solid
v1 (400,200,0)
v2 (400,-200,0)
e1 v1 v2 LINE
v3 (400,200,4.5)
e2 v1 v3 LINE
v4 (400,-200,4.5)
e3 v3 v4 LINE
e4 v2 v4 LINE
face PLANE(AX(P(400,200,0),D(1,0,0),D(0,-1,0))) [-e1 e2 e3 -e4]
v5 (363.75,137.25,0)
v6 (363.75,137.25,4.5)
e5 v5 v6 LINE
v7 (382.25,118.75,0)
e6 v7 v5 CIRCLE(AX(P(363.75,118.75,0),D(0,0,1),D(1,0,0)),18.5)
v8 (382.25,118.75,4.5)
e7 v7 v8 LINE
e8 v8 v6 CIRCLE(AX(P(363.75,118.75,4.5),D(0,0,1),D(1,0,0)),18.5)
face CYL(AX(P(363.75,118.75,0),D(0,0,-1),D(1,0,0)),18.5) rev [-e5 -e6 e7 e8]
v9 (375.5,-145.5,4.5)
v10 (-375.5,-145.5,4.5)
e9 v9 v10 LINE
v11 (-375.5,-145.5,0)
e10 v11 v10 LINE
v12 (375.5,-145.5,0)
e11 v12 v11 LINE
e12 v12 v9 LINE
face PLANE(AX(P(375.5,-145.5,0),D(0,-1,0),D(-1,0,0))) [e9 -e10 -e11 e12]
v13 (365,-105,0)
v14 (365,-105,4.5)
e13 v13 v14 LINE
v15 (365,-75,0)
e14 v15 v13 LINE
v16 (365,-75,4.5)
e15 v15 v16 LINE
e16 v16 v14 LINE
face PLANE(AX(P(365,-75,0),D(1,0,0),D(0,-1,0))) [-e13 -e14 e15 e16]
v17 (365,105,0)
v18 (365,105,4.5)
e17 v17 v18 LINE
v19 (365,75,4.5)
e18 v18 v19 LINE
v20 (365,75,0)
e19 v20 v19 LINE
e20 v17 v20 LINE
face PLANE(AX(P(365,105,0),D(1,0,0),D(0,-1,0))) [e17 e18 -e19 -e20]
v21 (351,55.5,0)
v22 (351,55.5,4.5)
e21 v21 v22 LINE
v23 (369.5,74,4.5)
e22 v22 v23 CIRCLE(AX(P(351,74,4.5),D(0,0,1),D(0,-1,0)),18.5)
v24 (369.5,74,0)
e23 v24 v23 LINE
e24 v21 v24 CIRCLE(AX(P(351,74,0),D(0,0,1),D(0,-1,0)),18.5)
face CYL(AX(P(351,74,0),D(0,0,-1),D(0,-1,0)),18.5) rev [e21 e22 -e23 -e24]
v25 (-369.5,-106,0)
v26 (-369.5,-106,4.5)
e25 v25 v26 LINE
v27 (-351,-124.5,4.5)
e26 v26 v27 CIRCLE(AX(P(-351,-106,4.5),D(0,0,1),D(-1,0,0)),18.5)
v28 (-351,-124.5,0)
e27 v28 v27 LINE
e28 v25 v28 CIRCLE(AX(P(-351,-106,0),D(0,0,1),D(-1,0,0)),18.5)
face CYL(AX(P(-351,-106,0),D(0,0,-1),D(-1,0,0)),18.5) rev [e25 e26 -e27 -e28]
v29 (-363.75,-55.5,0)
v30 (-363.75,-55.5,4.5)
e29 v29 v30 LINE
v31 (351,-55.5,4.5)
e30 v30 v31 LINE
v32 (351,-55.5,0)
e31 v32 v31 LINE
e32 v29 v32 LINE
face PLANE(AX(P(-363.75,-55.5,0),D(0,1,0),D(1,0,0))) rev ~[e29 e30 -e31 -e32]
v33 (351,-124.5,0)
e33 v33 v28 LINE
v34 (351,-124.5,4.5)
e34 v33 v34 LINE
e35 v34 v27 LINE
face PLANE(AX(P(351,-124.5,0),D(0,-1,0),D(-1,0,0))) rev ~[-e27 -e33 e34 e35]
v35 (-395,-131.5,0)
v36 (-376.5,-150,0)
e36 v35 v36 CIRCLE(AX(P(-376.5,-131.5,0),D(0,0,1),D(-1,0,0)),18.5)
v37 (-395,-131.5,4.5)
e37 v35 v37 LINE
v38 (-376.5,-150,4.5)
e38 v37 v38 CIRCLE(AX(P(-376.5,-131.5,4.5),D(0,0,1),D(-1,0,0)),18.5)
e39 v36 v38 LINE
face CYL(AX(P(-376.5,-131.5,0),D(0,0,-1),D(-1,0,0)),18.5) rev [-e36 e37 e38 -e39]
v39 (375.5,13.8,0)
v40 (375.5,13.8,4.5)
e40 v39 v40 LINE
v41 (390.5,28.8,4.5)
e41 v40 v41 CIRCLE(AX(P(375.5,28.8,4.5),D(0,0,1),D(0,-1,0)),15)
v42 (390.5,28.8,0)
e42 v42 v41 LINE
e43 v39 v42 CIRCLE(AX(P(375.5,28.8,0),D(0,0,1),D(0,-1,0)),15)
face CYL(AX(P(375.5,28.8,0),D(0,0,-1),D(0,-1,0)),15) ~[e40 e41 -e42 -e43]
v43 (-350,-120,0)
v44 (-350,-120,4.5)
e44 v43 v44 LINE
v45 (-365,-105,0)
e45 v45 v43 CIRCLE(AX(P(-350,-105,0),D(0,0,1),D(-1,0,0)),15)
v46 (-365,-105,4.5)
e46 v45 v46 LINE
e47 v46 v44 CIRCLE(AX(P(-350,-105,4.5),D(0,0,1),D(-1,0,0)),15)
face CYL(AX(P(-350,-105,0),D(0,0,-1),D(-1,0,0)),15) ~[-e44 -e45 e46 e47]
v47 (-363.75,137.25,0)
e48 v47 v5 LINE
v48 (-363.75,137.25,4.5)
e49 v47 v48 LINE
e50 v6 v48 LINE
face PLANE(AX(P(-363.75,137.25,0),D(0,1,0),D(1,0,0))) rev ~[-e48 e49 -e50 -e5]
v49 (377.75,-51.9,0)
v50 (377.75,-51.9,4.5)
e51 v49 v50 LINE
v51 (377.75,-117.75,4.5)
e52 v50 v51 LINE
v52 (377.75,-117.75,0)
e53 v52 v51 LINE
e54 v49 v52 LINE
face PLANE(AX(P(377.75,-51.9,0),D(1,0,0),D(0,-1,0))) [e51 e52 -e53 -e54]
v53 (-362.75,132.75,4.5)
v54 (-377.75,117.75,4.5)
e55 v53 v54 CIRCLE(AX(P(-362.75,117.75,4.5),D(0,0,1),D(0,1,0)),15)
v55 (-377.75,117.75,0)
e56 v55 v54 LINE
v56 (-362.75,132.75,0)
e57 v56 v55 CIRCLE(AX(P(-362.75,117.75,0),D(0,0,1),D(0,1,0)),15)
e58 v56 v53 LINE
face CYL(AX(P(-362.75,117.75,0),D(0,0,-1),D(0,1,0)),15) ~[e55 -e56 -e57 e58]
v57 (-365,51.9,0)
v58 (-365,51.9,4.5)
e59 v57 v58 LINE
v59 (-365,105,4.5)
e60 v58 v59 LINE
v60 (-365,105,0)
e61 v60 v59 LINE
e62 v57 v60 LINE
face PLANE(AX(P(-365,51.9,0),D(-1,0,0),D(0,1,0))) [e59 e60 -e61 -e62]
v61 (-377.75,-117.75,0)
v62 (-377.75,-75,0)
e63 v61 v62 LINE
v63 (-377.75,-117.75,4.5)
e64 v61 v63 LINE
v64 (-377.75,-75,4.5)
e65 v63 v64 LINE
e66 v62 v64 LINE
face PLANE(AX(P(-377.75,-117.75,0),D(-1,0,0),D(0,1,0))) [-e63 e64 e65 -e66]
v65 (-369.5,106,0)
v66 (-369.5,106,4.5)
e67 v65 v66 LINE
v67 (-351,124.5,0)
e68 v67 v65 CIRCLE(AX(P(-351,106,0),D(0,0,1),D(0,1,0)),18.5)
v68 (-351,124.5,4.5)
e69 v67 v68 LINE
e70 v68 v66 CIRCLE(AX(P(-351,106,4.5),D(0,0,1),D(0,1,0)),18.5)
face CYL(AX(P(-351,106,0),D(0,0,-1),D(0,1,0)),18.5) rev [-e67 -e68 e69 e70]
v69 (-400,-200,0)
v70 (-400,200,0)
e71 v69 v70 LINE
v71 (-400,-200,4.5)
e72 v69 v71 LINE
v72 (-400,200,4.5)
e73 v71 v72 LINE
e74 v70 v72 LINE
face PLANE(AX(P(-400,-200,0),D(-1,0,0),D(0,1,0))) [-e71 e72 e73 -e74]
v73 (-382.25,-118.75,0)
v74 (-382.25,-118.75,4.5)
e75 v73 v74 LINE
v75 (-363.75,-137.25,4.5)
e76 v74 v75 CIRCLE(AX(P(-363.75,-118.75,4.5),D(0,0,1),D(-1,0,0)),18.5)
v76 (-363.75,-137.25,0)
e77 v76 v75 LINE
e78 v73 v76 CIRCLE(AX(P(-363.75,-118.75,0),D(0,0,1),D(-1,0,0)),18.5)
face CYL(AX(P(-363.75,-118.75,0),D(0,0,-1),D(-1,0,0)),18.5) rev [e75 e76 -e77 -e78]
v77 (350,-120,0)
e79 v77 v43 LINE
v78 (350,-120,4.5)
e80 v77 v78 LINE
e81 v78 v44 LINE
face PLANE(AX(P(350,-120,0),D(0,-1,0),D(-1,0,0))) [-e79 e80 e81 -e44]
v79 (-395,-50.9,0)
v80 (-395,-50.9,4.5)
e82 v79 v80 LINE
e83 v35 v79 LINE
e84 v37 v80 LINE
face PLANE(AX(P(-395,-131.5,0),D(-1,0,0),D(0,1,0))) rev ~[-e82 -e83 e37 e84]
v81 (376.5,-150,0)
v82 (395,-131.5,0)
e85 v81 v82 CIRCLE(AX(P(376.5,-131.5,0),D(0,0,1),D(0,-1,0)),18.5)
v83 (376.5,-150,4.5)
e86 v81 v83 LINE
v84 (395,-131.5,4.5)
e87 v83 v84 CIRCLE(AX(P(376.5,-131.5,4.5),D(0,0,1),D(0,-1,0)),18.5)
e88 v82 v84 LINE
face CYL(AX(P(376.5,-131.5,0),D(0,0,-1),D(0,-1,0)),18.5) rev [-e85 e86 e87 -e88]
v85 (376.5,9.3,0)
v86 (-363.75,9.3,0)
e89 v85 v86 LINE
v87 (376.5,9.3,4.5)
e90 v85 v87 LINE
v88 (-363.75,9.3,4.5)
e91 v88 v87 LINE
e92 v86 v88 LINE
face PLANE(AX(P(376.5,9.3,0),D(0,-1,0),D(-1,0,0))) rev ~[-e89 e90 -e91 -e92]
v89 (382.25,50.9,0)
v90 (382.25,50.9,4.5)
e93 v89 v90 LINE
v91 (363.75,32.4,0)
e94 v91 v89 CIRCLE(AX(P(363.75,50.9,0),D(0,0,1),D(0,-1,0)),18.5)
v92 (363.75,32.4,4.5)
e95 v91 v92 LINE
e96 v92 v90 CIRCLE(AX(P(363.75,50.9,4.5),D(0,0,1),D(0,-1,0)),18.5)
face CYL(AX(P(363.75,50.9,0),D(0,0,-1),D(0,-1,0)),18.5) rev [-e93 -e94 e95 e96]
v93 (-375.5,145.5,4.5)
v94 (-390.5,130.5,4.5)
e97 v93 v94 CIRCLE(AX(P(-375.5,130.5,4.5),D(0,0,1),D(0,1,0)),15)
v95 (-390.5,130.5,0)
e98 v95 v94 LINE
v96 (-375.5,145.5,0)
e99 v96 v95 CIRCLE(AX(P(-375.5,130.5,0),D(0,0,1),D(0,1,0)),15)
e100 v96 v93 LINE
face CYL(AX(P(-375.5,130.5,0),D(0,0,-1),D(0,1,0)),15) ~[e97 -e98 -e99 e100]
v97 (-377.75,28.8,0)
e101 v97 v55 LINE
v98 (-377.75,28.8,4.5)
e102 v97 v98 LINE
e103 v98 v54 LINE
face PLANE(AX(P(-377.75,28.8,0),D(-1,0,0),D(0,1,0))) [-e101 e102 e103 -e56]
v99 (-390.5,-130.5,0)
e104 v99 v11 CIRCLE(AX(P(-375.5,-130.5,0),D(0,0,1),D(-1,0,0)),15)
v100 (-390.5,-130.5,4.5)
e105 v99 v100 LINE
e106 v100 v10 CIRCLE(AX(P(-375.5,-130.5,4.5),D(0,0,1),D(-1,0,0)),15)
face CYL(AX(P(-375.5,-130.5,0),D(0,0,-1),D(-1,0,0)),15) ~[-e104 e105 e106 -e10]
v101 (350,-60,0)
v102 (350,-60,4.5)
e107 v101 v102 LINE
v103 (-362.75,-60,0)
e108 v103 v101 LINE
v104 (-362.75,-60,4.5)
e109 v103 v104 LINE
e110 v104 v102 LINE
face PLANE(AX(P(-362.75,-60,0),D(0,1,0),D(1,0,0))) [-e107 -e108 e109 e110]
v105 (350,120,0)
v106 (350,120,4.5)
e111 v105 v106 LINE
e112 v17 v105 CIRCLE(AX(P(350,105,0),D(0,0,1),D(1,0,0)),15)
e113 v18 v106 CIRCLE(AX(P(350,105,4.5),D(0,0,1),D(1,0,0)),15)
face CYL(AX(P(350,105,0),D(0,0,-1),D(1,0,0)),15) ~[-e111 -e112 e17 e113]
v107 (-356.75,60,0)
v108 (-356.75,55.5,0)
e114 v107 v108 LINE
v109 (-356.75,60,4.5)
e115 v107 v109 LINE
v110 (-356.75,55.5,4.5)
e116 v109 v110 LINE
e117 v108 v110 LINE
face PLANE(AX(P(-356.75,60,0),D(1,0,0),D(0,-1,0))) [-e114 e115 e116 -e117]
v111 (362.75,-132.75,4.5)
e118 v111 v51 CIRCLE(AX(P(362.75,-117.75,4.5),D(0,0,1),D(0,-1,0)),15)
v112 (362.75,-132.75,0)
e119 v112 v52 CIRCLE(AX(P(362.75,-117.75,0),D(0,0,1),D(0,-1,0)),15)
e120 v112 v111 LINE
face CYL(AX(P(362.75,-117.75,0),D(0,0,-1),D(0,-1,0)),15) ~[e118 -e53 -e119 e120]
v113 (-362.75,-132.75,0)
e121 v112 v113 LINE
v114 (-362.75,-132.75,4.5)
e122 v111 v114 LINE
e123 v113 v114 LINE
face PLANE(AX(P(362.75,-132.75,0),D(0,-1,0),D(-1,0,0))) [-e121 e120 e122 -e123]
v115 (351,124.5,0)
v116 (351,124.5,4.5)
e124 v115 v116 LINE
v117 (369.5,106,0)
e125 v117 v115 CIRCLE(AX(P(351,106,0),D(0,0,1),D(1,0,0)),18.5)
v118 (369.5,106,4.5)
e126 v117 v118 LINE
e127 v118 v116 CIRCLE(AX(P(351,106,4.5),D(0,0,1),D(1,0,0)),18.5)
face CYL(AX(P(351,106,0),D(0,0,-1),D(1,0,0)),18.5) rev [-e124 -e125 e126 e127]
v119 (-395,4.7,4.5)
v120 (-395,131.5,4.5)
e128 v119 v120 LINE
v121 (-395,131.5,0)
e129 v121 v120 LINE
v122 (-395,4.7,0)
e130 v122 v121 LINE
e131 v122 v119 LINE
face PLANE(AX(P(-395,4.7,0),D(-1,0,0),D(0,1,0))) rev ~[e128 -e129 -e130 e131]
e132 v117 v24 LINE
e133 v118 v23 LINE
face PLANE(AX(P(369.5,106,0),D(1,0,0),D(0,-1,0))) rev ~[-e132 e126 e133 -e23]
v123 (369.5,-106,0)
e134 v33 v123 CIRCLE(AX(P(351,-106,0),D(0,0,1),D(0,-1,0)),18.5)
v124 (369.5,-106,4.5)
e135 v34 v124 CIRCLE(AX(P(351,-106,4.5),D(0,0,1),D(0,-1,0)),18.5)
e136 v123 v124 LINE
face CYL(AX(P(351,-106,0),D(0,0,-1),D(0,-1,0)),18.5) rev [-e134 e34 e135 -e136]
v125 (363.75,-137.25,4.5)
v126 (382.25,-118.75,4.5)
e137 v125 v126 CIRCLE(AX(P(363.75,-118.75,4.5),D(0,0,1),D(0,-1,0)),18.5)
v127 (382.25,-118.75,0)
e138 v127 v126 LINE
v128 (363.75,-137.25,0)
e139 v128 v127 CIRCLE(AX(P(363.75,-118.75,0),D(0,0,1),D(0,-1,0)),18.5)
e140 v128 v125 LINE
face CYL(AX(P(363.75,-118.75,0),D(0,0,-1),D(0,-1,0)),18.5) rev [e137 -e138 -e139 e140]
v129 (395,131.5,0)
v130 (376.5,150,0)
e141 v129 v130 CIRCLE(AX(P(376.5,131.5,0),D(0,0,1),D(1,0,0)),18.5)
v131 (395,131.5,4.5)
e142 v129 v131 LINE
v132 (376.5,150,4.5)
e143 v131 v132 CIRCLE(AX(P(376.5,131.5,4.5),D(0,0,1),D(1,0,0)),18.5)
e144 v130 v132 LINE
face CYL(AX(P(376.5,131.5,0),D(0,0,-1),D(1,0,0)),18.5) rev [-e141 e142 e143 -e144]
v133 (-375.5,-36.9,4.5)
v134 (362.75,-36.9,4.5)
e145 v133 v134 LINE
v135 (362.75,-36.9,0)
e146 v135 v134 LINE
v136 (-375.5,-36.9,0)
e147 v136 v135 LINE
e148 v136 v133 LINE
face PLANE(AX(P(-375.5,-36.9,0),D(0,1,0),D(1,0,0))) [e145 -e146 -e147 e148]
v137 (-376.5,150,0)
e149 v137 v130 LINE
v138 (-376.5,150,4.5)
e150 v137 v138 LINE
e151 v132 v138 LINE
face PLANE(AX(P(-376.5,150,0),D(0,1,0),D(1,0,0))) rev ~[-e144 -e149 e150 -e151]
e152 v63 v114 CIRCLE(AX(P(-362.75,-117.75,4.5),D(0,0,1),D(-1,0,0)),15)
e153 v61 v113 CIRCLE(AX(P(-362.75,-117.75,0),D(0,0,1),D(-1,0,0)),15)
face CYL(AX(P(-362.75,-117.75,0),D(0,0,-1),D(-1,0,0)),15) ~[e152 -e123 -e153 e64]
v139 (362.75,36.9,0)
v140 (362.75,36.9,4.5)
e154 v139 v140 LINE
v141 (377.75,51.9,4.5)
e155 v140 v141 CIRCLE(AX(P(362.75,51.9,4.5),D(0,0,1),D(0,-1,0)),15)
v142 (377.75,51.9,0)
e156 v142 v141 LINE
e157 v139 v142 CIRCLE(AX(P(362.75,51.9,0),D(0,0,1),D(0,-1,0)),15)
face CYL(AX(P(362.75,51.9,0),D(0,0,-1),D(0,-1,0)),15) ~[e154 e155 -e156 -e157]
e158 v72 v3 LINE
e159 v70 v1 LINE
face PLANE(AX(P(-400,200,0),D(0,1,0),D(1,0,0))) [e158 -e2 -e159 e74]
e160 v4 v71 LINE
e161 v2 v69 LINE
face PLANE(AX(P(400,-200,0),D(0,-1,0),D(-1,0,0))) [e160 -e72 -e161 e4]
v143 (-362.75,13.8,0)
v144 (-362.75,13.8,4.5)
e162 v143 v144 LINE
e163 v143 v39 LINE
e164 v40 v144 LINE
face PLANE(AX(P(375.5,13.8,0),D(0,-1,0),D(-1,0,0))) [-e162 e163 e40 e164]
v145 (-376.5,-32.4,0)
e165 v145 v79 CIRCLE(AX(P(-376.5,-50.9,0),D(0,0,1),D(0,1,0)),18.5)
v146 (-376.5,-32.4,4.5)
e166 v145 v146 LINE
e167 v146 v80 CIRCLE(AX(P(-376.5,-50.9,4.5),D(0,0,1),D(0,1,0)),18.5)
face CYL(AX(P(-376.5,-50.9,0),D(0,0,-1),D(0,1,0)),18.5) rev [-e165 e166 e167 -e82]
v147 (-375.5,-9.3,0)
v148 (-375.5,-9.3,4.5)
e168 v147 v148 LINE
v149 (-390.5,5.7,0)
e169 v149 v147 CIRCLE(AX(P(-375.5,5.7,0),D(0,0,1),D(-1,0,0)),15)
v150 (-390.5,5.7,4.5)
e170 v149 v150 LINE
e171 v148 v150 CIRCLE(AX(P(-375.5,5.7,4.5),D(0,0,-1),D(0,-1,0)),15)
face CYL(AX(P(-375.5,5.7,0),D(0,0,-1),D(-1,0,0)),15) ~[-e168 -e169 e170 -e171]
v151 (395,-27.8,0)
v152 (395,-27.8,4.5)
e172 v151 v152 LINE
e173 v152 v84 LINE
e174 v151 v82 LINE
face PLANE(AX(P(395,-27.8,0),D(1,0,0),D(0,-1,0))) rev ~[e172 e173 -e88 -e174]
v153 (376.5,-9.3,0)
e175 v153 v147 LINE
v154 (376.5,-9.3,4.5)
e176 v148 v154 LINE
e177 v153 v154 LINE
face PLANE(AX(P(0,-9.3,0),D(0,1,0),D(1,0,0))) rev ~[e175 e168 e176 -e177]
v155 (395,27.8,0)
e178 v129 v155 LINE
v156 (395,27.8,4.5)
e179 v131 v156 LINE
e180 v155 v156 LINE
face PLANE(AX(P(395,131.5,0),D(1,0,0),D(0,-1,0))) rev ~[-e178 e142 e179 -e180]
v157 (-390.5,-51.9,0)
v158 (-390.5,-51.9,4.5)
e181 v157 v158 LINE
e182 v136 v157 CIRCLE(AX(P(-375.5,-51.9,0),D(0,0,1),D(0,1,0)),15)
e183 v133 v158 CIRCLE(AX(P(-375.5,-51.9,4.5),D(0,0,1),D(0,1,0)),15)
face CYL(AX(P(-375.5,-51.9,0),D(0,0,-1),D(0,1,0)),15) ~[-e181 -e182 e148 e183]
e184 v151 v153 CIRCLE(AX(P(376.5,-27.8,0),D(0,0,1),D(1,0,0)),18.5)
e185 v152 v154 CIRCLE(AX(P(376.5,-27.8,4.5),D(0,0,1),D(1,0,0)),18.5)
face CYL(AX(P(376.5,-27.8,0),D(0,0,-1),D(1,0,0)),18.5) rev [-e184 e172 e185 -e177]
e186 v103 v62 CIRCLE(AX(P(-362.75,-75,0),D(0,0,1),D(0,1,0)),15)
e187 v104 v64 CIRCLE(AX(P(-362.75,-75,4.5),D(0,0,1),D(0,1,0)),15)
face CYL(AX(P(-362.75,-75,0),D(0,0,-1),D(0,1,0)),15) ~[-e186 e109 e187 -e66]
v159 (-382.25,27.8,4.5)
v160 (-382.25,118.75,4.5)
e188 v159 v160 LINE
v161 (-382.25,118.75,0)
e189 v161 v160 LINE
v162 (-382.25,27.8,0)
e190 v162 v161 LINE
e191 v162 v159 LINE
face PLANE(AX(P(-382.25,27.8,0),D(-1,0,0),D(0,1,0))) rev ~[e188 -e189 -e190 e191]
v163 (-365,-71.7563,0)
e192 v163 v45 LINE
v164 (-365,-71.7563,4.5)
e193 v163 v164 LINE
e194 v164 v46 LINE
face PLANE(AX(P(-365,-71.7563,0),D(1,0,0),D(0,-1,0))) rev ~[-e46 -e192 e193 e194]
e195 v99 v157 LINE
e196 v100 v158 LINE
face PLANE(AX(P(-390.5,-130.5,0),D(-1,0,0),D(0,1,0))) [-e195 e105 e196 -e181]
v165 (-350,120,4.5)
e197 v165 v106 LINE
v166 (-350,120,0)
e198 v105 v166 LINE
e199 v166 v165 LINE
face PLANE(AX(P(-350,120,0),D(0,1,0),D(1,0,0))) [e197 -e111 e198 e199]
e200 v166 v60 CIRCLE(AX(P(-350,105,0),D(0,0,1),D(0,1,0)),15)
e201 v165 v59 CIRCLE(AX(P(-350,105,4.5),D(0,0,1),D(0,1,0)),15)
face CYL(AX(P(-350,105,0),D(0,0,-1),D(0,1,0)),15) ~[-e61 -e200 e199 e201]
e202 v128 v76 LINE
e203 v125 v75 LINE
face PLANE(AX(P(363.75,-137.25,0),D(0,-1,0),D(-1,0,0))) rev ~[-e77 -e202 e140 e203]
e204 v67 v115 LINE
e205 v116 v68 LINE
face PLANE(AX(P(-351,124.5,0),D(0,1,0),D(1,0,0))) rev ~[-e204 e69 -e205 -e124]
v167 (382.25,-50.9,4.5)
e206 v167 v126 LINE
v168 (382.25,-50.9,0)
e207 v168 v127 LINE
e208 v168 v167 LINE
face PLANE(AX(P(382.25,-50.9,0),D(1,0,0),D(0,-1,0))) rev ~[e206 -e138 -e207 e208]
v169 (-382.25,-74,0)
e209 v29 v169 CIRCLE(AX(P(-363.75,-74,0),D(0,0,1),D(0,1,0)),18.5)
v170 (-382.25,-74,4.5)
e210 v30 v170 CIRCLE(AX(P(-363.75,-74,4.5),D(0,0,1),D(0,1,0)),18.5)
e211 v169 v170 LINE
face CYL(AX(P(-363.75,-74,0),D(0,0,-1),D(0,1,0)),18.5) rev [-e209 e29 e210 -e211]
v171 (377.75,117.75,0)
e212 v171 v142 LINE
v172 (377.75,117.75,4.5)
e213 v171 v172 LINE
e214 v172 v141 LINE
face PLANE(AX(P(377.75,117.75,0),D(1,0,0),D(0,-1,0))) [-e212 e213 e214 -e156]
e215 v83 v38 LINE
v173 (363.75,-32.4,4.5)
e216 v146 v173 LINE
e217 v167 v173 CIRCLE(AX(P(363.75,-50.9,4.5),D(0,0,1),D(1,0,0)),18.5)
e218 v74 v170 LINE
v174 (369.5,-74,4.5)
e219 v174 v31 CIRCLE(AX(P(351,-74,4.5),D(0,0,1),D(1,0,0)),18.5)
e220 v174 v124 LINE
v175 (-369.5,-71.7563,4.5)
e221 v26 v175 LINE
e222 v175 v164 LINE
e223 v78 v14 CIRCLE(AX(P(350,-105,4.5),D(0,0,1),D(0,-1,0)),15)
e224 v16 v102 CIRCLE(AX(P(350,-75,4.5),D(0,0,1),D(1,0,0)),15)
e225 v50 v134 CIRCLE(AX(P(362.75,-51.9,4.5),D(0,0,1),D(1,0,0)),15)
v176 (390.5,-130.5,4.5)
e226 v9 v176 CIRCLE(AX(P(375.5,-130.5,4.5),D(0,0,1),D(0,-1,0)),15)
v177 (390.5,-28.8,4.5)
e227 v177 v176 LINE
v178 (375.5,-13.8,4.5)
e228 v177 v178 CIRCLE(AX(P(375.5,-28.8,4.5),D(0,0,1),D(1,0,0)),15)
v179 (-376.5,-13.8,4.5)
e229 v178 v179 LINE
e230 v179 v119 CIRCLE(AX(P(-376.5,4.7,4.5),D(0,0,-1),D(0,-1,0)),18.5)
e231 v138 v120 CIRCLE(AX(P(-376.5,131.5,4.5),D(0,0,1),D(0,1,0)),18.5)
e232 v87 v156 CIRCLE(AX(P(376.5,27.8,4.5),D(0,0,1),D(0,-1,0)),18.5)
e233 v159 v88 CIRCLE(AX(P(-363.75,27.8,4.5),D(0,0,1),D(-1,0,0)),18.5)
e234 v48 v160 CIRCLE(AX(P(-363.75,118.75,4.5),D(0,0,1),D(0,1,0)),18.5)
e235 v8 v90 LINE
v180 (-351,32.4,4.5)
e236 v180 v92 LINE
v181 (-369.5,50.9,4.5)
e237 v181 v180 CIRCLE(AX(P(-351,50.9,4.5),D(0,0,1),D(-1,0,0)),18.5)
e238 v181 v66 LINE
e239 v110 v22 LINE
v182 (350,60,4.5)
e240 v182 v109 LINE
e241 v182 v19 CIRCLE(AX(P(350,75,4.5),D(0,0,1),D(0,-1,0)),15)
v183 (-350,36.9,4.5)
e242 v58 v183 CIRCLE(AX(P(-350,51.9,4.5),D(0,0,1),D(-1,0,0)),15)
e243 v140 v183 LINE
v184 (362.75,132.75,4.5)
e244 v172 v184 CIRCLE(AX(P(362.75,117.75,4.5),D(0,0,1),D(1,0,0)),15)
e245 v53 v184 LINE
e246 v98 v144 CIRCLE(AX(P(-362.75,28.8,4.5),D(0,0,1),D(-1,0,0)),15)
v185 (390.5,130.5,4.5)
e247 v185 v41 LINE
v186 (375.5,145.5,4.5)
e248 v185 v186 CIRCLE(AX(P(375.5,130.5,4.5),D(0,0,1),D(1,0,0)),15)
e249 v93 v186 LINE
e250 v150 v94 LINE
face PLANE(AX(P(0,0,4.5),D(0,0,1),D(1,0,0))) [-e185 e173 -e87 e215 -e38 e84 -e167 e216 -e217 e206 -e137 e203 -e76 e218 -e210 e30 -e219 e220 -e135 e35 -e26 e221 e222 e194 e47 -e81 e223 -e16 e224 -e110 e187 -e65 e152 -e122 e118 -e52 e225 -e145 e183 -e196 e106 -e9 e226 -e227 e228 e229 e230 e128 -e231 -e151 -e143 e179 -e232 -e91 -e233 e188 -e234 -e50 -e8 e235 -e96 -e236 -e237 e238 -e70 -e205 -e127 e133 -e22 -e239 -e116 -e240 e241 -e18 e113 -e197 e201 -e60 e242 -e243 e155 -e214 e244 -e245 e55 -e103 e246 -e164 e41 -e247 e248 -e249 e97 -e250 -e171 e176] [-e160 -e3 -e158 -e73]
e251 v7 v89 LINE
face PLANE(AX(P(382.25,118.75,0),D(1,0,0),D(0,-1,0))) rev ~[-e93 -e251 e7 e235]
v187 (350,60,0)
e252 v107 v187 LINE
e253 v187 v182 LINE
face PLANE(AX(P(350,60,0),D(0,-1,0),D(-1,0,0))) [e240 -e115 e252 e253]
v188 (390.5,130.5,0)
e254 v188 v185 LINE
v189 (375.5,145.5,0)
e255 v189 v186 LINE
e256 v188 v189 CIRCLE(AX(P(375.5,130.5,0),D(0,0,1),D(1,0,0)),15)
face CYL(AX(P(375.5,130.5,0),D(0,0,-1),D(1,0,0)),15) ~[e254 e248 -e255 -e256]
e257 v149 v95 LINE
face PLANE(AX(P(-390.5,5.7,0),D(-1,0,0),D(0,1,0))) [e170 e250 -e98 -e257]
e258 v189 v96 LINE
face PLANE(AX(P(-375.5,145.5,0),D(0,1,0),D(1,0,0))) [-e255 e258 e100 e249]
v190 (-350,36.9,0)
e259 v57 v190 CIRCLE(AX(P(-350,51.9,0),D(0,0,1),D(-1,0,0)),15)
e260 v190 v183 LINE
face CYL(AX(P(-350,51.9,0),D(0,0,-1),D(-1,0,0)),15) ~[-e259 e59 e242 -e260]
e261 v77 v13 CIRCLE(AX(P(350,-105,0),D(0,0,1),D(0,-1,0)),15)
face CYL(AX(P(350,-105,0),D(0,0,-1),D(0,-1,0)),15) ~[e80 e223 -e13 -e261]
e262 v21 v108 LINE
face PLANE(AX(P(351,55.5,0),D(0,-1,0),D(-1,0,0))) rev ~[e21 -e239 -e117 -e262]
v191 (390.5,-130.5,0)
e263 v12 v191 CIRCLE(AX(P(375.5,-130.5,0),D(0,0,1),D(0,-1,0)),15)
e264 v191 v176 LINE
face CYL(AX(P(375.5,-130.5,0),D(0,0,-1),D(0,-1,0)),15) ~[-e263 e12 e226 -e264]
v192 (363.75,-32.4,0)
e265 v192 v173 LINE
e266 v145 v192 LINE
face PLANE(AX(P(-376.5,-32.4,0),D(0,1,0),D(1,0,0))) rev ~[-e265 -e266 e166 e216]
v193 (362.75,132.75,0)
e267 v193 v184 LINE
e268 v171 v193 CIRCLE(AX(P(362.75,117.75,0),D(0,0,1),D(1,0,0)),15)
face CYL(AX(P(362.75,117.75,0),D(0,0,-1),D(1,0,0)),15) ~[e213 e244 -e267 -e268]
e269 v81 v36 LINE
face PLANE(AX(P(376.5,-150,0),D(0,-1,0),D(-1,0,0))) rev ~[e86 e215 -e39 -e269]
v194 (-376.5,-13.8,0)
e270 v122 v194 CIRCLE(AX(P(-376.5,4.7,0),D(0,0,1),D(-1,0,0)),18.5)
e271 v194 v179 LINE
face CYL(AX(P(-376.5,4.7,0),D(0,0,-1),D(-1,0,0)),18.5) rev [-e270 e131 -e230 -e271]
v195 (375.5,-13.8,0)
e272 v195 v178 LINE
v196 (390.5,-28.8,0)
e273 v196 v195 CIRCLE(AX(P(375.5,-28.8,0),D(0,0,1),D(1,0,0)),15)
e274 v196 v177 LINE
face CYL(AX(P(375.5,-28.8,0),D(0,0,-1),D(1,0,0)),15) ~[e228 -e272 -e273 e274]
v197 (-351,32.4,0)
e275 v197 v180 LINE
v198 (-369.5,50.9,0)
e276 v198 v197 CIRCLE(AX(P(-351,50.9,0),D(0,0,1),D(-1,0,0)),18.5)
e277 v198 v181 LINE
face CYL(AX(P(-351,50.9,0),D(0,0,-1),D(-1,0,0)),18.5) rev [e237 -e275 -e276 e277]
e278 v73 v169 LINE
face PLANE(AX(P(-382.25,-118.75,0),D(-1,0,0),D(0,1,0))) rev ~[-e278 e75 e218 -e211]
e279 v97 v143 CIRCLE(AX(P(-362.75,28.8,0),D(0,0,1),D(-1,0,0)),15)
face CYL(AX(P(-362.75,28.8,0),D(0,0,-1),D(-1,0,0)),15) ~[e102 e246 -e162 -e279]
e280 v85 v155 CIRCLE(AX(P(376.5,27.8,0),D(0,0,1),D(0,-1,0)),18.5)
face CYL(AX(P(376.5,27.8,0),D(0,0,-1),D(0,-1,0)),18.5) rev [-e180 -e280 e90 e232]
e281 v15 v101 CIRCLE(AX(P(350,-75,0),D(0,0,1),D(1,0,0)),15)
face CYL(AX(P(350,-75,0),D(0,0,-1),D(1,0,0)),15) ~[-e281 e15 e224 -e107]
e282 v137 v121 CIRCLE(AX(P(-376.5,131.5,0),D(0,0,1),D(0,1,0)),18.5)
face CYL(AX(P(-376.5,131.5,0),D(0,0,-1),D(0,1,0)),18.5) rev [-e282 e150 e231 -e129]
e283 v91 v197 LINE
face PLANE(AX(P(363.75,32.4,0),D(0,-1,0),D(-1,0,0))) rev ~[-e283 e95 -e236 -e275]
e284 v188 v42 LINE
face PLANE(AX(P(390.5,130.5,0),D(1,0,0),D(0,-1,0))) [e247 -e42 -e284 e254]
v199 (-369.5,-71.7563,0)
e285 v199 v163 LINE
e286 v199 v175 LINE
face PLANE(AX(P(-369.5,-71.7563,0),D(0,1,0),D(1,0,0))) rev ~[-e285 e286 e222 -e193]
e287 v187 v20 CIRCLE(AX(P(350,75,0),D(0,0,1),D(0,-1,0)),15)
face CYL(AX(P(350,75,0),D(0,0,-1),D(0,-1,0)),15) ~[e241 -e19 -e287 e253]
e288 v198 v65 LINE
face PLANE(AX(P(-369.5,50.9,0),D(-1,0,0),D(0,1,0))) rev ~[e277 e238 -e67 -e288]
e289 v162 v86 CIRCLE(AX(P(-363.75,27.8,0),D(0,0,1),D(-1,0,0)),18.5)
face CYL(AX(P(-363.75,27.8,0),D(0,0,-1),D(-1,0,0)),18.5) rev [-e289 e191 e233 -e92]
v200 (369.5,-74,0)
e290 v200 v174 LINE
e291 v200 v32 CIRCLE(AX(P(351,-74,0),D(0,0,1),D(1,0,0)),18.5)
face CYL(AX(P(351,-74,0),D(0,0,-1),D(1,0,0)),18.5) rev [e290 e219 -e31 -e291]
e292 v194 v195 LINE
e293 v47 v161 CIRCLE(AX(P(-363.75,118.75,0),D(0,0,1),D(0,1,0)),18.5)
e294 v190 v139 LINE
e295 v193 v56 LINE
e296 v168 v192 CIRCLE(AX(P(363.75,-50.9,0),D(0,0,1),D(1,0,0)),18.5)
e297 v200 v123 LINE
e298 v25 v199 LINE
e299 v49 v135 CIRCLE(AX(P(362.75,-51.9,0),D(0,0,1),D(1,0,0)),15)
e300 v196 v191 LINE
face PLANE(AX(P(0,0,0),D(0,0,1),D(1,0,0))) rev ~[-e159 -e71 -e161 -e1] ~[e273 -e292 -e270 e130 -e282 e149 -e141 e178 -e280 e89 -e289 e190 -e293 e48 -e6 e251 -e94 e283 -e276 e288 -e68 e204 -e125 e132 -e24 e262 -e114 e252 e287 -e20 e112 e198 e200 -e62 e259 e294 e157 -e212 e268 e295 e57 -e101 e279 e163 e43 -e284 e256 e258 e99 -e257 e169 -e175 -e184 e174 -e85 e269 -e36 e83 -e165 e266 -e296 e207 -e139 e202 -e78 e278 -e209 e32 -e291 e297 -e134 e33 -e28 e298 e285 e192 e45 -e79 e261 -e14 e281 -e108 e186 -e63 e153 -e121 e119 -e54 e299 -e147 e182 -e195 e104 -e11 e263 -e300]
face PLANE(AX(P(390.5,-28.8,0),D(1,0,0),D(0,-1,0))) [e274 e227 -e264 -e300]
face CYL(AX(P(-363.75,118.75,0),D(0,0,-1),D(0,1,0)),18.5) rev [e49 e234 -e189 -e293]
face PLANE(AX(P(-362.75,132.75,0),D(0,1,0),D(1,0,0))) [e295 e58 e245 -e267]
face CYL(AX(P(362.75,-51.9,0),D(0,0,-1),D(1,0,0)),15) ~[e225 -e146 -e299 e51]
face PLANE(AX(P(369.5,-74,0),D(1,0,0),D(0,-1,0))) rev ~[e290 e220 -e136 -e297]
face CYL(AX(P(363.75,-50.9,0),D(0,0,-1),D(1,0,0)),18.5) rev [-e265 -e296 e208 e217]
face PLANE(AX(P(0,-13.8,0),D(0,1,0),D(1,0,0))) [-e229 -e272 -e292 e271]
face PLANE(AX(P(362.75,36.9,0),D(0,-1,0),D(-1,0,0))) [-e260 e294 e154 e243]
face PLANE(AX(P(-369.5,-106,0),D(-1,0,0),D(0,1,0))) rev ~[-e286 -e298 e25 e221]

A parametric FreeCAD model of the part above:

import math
import FreeCAD as App
import Part
import Sketcher
from FreeCAD import Vector


def add_polygon(sketch, points):
    """Adds a closed chain of lines whose ends are joined by coincident constraints."""
    first, n = sketch.GeometryCount, len(points)
    for a, b in zip(points, points[1:] + points[:1]):
        sketch.addGeometry(Part.LineSegment(App.Vector(*a, 0), App.Vector(*b, 0)), False)
    for i in range(n):
        sketch.addConstraint(Sketcher.Constraint("Coincident", first + i, 2, first + (i + 1) % n, 1))

doc = App.newDocument("Part")
body = doc.addObject("PartDesign::Body", "Body")

sketch1 = body.newObject("Sketcher::SketchObject", "Sketch")
sketch1.AttachmentSupport = (doc.getObject("XY_Plane"), [""])
sketch1.MapMode = "FlatFace"
add_polygon(sketch1, [(400, 200), (-400, 200), (-400, -200), (400, -200)])
sketch1.addConstraint([
    Sketcher.Constraint("Horizontal", 0),
    Sketcher.Constraint("Vertical", 1),
    Sketcher.Constraint("Horizontal", 2),
    Sketcher.Constraint("Vertical", 3),
    Sketcher.Constraint("Symmetric", 0, 2, 2, 2, -1, 1),
    Sketcher.Constraint("DistanceX", 0, 2, 0, 1, 800.0),
    Sketcher.Constraint("DistanceY", 1, 2, 1, 1, 400.0),
])
pad1 = body.newObject("PartDesign::Pad", "Pad")
pad1.Profile = sketch1
pad1.Length = 4.5

sketch2 = body.newObject("Sketcher::SketchObject", "Sketch001")
sketch2.AttachmentSupport = (doc.getObject("XY_Plane"), [""])
sketch2.MapMode = "FlatFace"
sketch2.addGeometry([
    Part.LineSegment(Vector(-376.5, -13.8, 0), Vector(0, -13.8, 0)),
    Part.LineSegment(Vector(0, -13.8, 0), Vector(0, -9.3, 0)),
    Part.LineSegment(Vector(0, -9.3, 0), Vector(-375.5, -9.3, 0)),
    Part.ArcOfCircle(Part.Circle(Vector(-375.5, 5.7, 0), Vector(0, 0, 1), 15), math.radians(180), math.radians(270)),
    Part.LineSegment(Vector(-390.5, 5.7, 0), Vector(-390.5, 130.5, 0)),
    Part.ArcOfCircle(Part.Circle(Vector(-375.5, 130.5, 0), Vector(0, 0, 1), 15), math.radians(90), math.radians(180)),
    Part.LineSegment(Vector(-375.5, 145.5, 0), Vector(375.5, 145.5, 0)),
    Part.ArcOfCircle(Part.Circle(Vector(375.5, 130.5, 0), Vector(0, 0, 1), 15), math.radians(0), math.radians(90)),
    Part.LineSegment(Vector(390.5, 130.5, 0), Vector(390.5, 28.8, 0)),
    Part.ArcOfCircle(Part.Circle(Vector(375.5, 28.8, 0), Vector(0, 0, 1), 15), math.radians(-90), math.radians(0)),
    Part.LineSegment(Vector(375.5, 13.8, 0), Vector(-362.75, 13.8, 0)),
    Part.ArcOfCircle(Part.Circle(Vector(-362.75, 28.8, 0), Vector(0, 0, 1), 15), math.radians(180), math.radians(270)),
    Part.LineSegment(Vector(-377.75, 28.8, 0), Vector(-377.75, 117.75, 0)),
    Part.ArcOfCircle(Part.Circle(Vector(-362.75, 117.75, 0), Vector(0, 0, 1), 15), math.radians(90), math.radians(180)),
    Part.LineSegment(Vector(-362.75, 132.75, 0), Vector(362.75, 132.75, 0)),
    Part.ArcOfCircle(Part.Circle(Vector(362.75, 117.75, 0), Vector(0, 0, 1), 15), math.radians(0), math.radians(90)),
    Part.LineSegment(Vector(377.75, 117.75, 0), Vector(377.75, 51.9, 0)),
    Part.ArcOfCircle(Part.Circle(Vector(362.75, 51.9, 0), Vector(0, 0, 1), 15), math.radians(-90), math.radians(0)),
    Part.LineSegment(Vector(362.75, 36.9, 0), Vector(-350, 36.9, 0)),
    Part.ArcOfCircle(Part.Circle(Vector(-350, 51.9, 0), Vector(0, 0, 1), 15), math.radians(180), math.radians(270)),
    Part.LineSegment(Vector(-365, 51.9, 0), Vector(-365, 105, 0)),
    Part.ArcOfCircle(Part.Circle(Vector(-350, 105, 0), Vector(0, 0, 1), 15), math.radians(90), math.radians(180)),
    Part.LineSegment(Vector(-350, 120, 0), Vector(350, 120, 0)),
    Part.ArcOfCircle(Part.Circle(Vector(350, 105, 0), Vector(0, 0, 1), 15), math.radians(0), math.radians(90)),
    Part.LineSegment(Vector(365, 105, 0), Vector(365, 75, 0)),
    Part.ArcOfCircle(Part.Circle(Vector(350, 75, 0), Vector(0, 0, 1), 15), math.radians(-90), math.radians(0)),
    Part.LineSegment(Vector(350, 60, 0), Vector(-356.75, 60, 0)),
    Part.LineSegment(Vector(-356.75, 60, 0), Vector(-356.75, 55.5, 0)),
    Part.LineSegment(Vector(-356.75, 55.5, 0), Vector(351, 55.5, 0)),
    Part.ArcOfCircle(Part.Circle(Vector(351, 74, 0), Vector(0, 0, 1), 18.5), math.radians(-90), math.radians(0)),
    Part.LineSegment(Vector(369.5, 74, 0), Vector(369.5, 106, 0)),
    Part.ArcOfCircle(Part.Circle(Vector(351, 106, 0), Vector(0, 0, 1), 18.5), math.radians(0), math.radians(90)),
    Part.LineSegment(Vector(351, 124.5, 0), Vector(-351, 124.5, 0)),
    Part.ArcOfCircle(Part.Circle(Vector(-351, 106, 0), Vector(0, 0, 1), 18.5), math.radians(90), math.radians(180)),
    Part.LineSegment(Vector(-369.5, 106, 0), Vector(-369.5, 50.9, 0)),
    Part.ArcOfCircle(Part.Circle(Vector(-351, 50.9, 0), Vector(0, 0, 1), 18.5), math.radians(180), math.radians(270)),
    Part.LineSegment(Vector(-351, 32.4, 0), Vector(363.75, 32.4, 0)),
    Part.ArcOfCircle(Part.Circle(Vector(363.75, 50.9, 0), Vector(0, 0, 1), 18.5), math.radians(-90), math.radians(0)),
    Part.LineSegment(Vector(382.25, 50.9, 0), Vector(382.25, 118.75, 0)),
    Part.ArcOfCircle(Part.Circle(Vector(363.75, 118.75, 0), Vector(0, 0, 1), 18.5), math.radians(0), math.radians(90)),
    Part.LineSegment(Vector(363.75, 137.25, 0), Vector(-363.75, 137.25, 0)),
    Part.ArcOfCircle(Part.Circle(Vector(-363.75, 118.75, 0), Vector(0, 0, 1), 18.5), math.radians(90), math.radians(180)),
    Part.LineSegment(Vector(-382.25, 118.75, 0), Vector(-382.25, 27.8, 0)),
    Part.ArcOfCircle(Part.Circle(Vector(-363.75, 27.8, 0), Vector(0, 0, 1), 18.5), math.radians(180), math.radians(270)),
    Part.LineSegment(Vector(-363.75, 9.3, 0), Vector(376.5, 9.3, 0)),
    Part.ArcOfCircle(Part.Circle(Vector(376.5, 27.8, 0), Vector(0, 0, 1), 18.5), math.radians(-90), math.radians(0)),
    Part.LineSegment(Vector(395, 27.8, 0), Vector(395, 131.5, 0)),
    Part.ArcOfCircle(Part.Circle(Vector(376.5, 131.5, 0), Vector(0, 0, 1), 18.5), math.radians(0), math.radians(90)),
    Part.LineSegment(Vector(376.5, 150, 0), Vector(-376.5, 150, 0)),
    Part.ArcOfCircle(Part.Circle(Vector(-376.5, 131.5, 0), Vector(0, 0, 1), 18.5), math.radians(90), math.radians(180)),
    Part.LineSegment(Vector(-395, 131.5, 0), Vector(-395, 4.7, 0)),
    Part.ArcOfCircle(Part.Circle(Vector(-376.5, 4.7, 0), Vector(0, 0, 1), 18.5), math.radians(180), math.radians(270)),
], False)
sketch2.addConstraint([
    Sketcher.Constraint("Coincident", 0, 2, 1, 1),
    Sketcher.Constraint("Coincident", 1, 2, 2, 1),
    Sketcher.Constraint("Tangent", 2, 2, 3, 2),
    Sketcher.Constraint("Tangent", 3, 1, 4, 1),
    Sketcher.Constraint("Tangent", 4, 2, 5, 2),
    Sketcher.Constraint("Tangent", 5, 1, 6, 1),
    Sketcher.Constraint("Tangent", 6, 2, 7, 2),
    Sketcher.Constraint("Tangent", 7, 1, 8, 1),
    Sketcher.Constraint("Tangent", 8, 2, 9, 2),
    Sketcher.Constraint("Tangent", 9, 1, 10, 1),
    Sketcher.Constraint("Tangent", 10, 2, 11, 2),
    Sketcher.Constraint("Tangent", 11, 1, 12, 1),
    Sketcher.Constraint("Tangent", 12, 2, 13, 2),
    Sketcher.Constraint("Tangent", 13, 1, 14, 1),
    Sketcher.Constraint("Tangent", 14, 2, 15, 2),
    Sketcher.Constraint("Tangent", 15, 1, 16, 1),
    Sketcher.Constraint("Tangent", 16, 2, 17, 2),
    Sketcher.Constraint("Tangent", 17, 1, 18, 1),
    Sketcher.Constraint("Tangent", 18, 2, 19, 2),
    Sketcher.Constraint("Tangent", 19, 1, 20, 1),
    Sketcher.Constraint("Tangent", 20, 2, 21, 2),
    Sketcher.Constraint("Tangent", 21, 1, 22, 1),
    Sketcher.Constraint("Tangent", 22, 2, 23, 2),
    Sketcher.Constraint("Tangent", 23, 1, 24, 1),
    Sketcher.Constraint("Tangent", 24, 2, 25, 2),
    Sketcher.Constraint("Tangent", 25, 1, 26, 1),
    Sketcher.Constraint("Coincident", 26, 2, 27, 1),
    Sketcher.Constraint("Coincident", 27, 2, 28, 1),
    Sketcher.Constraint("Tangent", 28, 2, 29, 1),
    Sketcher.Constraint("Tangent", 29, 2, 30, 1),
    Sketcher.Constraint("Tangent", 30, 2, 31, 1),
    Sketcher.Constraint("Tangent", 31, 2, 32, 1),
    Sketcher.Constraint("Tangent", 32, 2, 33, 1),
    Sketcher.Constraint("Tangent", 33, 2, 34, 1),
    Sketcher.Constraint("Tangent", 34, 2, 35, 1),
    Sketcher.Constraint("Tangent", 35, 2, 36, 1),
    Sketcher.Constraint("Tangent", 36, 2, 37, 1),
    Sketcher.Constraint("Tangent", 37, 2, 38, 1),
    Sketcher.Constraint("Tangent", 38, 2, 39, 1),
    Sketcher.Constraint("Tangent", 39, 2, 40, 1),
    Sketcher.Constraint("Tangent", 40, 2, 41, 1),
    Sketcher.Constraint("Tangent", 41, 2, 42, 1),
    Sketcher.Constraint("Tangent", 42, 2, 43, 1),
    Sketcher.Constraint("Tangent", 43, 2, 44, 1),
    Sketcher.Constraint("Tangent", 44, 2, 45, 1),
    Sketcher.Constraint("Tangent", 45, 2, 46, 1),
    Sketcher.Constraint("Tangent", 46, 2, 47, 1),
    Sketcher.Constraint("Tangent", 47, 2, 48, 1),
    Sketcher.Constraint("Tangent", 48, 2, 49, 1),
    Sketcher.Constraint("Tangent", 49, 2, 50, 1),
    Sketcher.Constraint("Tangent", 50, 2, 51, 1),
    Sketcher.Constraint("Tangent", 51, 2, 0, 1),
    Sketcher.Constraint("Horizontal", 0),
    Sketcher.Constraint("Vertical", 1),
    Sketcher.Constraint("Horizontal", 2),
    Sketcher.Constraint("Vertical", 4),
    Sketcher.Constraint("Horizontal", 6),
    Sketcher.Constraint("Vertical", 8),
    Sketcher.Constraint("Horizontal", 10),
    Sketcher.Constraint("Vertical", 12),
    Sketcher.Constraint("Horizontal", 14),
    Sketcher.Constraint("Vertical", 16),
    Sketcher.Constraint("Horizontal", 18),
    Sketcher.Constraint("Vertical", 20),
    Sketcher.Constraint("Horizontal", 22),
    Sketcher.Constraint("Vertical", 24),
    Sketcher.Constraint("Horizontal", 26),
    Sketcher.Constraint("Vertical", 27),
    Sketcher.Constraint("Horizontal", 28),
    Sketcher.Constraint("Vertical", 30),
    Sketcher.Constraint("Horizontal", 32),
    Sketcher.Constraint("Vertical", 34),
    Sketcher.Constraint("Horizontal", 36),
    Sketcher.Constraint("Vertical", 38),
    Sketcher.Constraint("Horizontal", 40),
    Sketcher.Constraint("Vertical", 42),
    Sketcher.Constraint("Horizontal", 44),
    Sketcher.Constraint("Vertical", 46),
    Sketcher.Constraint("Horizontal", 48),
    Sketcher.Constraint("Vertical", 50),
    Sketcher.Constraint("Equal", 3, 5),
    Sketcher.Constraint("Equal", 5, 7),
    Sketcher.Constraint("Equal", 7, 9),
    Sketcher.Constraint("Equal", 9, 11),
    Sketcher.Constraint("Equal", 11, 13),
    Sketcher.Constraint("Equal", 13, 15),
    Sketcher.Constraint("Equal", 15, 17),
    Sketcher.Constraint("Equal", 17, 19),
    Sketcher.Constraint("Equal", 19, 21),
    Sketcher.Constraint("Equal", 21, 23),
    Sketcher.Constraint("Equal", 23, 25),
    Sketcher.Constraint("Equal", 29, 31),
    Sketcher.Constraint("Equal", 31, 33),
    Sketcher.Constraint("Equal", 33, 35),
    Sketcher.Constraint("Equal", 35, 37),
    Sketcher.Constraint("Equal", 37, 39),
    Sketcher.Constraint("Equal", 39, 41),
    Sketcher.Constraint("Equal", 41, 43),
    Sketcher.Constraint("Equal", 43, 45),
    Sketcher.Constraint("Equal", 45, 47),
    Sketcher.Constraint("Equal", 47, 49),
    Sketcher.Constraint("Equal", 49, 51),
    Sketcher.Constraint("PointOnObject", 0, 2, -2),
    Sketcher.Constraint("Equal", 1, 27),
    Sketcher.Constraint("Radius", 3, 15.0),
    Sketcher.Constraint("Radius", 29, 18.5),
    Sketcher.Constraint("DistanceY", 1, 1, 1, 2, 4.5),
    Sketcher.Constraint("DistanceY", -1, 1, 47, 2, 150.0),
    Sketcher.Constraint("DistanceY", 1, 2, -1, 1, 9.3),
    Sketcher.Constraint("DistanceY", -1, 1, 43, 2, 9.3),
    Sketcher.Constraint("DistanceX", 6, 1, 6, 2, 751.0),
    Sketcher.Constraint("DistanceX", 22, 1, 22, 2, 700.0),
    Sketcher.Constraint("DistanceX", 32, 2, 32, 1, 702.0),
    Sketcher.Constraint("DistanceX", 48, 2, 48, 1, 753.0),
    Sketcher.Constraint("DistanceY", 24, 2, 24, 1, 30.0),
    Sketcher.Constraint("DistanceY", 30, 1, 30, 2, 32.0),
    Sketcher.Constraint("DistanceX", 0, 1, 0, 2, 376.5),
    Sketcher.Constraint("DistanceX", 2, 2, 2, 1, 375.5),
    Sketcher.Constraint("DistanceX", 14, 1, 14, 2, 725.5),
    Sketcher.Constraint("DistanceX", 40, 2, 40, 1, 727.5),
    Sketcher.Constraint("DistanceY", 4, 1, 4, 2, 124.8),
    Sketcher.Constraint("DistanceY", 8, 2, 8, 1, 101.7),
    Sketcher.Constraint("DistanceY", 20, 1, 20, 2, 53.1),
    Sketcher.Constraint("DistanceY", 34, 2, 34, 1, 55.1),
    Sketcher.Constraint("DistanceX", 19, 3, -1, 1, 350.0),
    Sketcher.Constraint("DistanceY", -1, 1, 21, 3, 105.0),
    Sketcher.Constraint("DistanceX", -1, 1, 29, 3, 351.0),
    Sketcher.Constraint("DistanceX", 10, 2, 10, 1, 738.25),
    Sketcher.Constraint("DistanceX", 26, 2, 26, 1, 706.75),
    Sketcher.Constraint("DistanceX", 36, 1, 36, 2, 714.75),
    Sketcher.Constraint("DistanceY", 12, 1, 12, 2, 88.95),
    Sketcher.Constraint("DistanceY", 38, 1, 38, 2, 67.85),
])
pocket1 = body.newObject("PartDesign::Pocket", "Pocket")
pocket1.Profile = sketch2
pocket1.Length = 4.5
pocket1.Reversed = True

sketch3 = body.newObject("Sketcher::SketchObject", "Sketch002")
sketch3.AttachmentSupport = (doc.getObject("XY_Plane"), [""])
sketch3.MapMode = "FlatFace"
sketch3.addGeometry([
    Part.LineSegment(Vector(376.5, -9.3, 0), Vector(0, -9.3, 0)),
    Part.LineSegment(Vector(0, -9.3, 0), Vector(0, -13.8, 0)),
    Part.LineSegment(Vector(0, -13.8, 0), Vector(375.5, -13.8, 0)),
    Part.ArcOfCircle(Part.Circle(Vector(375.5, -28.8, 0), Vector(0, 0, 1), 15), math.radians(0), math.radians(90)),
    Part.LineSegment(Vector(390.5, -28.8, 0), Vector(390.5, -130.5, 0)),
    Part.ArcOfCircle(Part.Circle(Vector(375.5, -130.5, 0), Vector(0, 0, 1), 15), math.radians(-90), math.radians(0)),
    Part.LineSegment(Vector(375.5, -145.5, 0), Vector(-375.5, -145.5, 0)),
    Part.ArcOfCircle(Part.Circle(Vector(-375.5, -130.5, 0), Vector(0, 0, 1), 15), math.radians(180), math.radians(270)),
    Part.LineSegment(Vector(-390.5, -130.5, 0), Vector(-390.5, -51.9, 0)),
    Part.ArcOfCircle(Part.Circle(Vector(-375.5, -51.9, 0), Vector(0, 0, 1), 15), math.radians(90), math.radians(180)),
    Part.LineSegment(Vector(-375.5, -36.9, 0), Vector(362.75, -36.9, 0)),
    Part.ArcOfCircle(Part.Circle(Vector(362.75, -51.9, 0), Vector(0, 0, 1), 15), math.radians(0), math.radians(90)),
    Part.LineSegment(Vector(377.75, -51.9, 0), Vector(377.75, -117.75, 0)),
    Part.ArcOfCircle(Part.Circle(Vector(362.75, -117.75, 0), Vector(0, 0, 1), 15), math.radians(-90), math.radians(0)),
    Part.LineSegment(Vector(362.75, -132.75, 0), Vector(-362.75, -132.75, 0)),
    Part.ArcOfCircle(Part.Circle(Vector(-362.75, -117.75, 0), Vector(0, 0, 1), 15), math.radians(180), math.radians(270)),
    Part.LineSegment(Vector(-377.75, -117.75, 0), Vector(-377.75, -75, 0)),
    Part.ArcOfCircle(Part.Circle(Vector(-362.75, -75, 0), Vector(0, 0, 1), 15), math.radians(90), math.radians(180)),
    Part.LineSegment(Vector(-362.75, -60, 0), Vector(350, -60, 0)),
    Part.ArcOfCircle(Part.Circle(Vector(350, -75, 0), Vector(0, 0, 1), 15), math.radians(0), math.radians(90)),
    Part.LineSegment(Vector(365, -75, 0), Vector(365, -105, 0)),
    Part.ArcOfCircle(Part.Circle(Vector(350, -105, 0), Vector(0, 0, 1), 15), math.radians(-90), math.radians(0)),
    Part.LineSegment(Vector(350, -120, 0), Vector(-350, -120, 0)),
    Part.ArcOfCircle(Part.Circle(Vector(-350, -105, 0), Vector(0, 0, 1), 15), math.radians(180), math.radians(270)),
    Part.LineSegment(Vector(-365, -105, 0), Vector(-365, -71.7563, 0)),
    Part.LineSegment(Vector(-365, -71.7563, 0), Vector(-369.5, -71.7563, 0)),
    Part.LineSegment(Vector(-369.5, -71.7563, 0), Vector(-369.5, -106, 0)),
    Part.ArcOfCircle(Part.Circle(Vector(-351, -106, 0), Vector(0, 0, 1), 18.5), math.radians(180), math.radians(270)),
    Part.LineSegment(Vector(-351, -124.5, 0), Vector(351, -124.5, 0)),
    Part.ArcOfCircle(Part.Circle(Vector(351, -106, 0), Vector(0, 0, 1), 18.5), math.radians(-90), math.radians(0)),
    Part.LineSegment(Vector(369.5, -106, 0), Vector(369.5, -74, 0)),
    Part.ArcOfCircle(Part.Circle(Vector(351, -74, 0), Vector(0, 0, 1), 18.5), math.radians(0), math.radians(90)),
    Part.LineSegment(Vector(351, -55.5, 0), Vector(-363.75, -55.5, 0)),
    Part.ArcOfCircle(Part.Circle(Vector(-363.75, -74, 0), Vector(0, 0, 1), 18.5), math.radians(90), math.radians(180)),
    Part.LineSegment(Vector(-382.25, -74, 0), Vector(-382.25, -118.75, 0)),
    Part.ArcOfCircle(Part.Circle(Vector(-363.75, -118.75, 0), Vector(0, 0, 1), 18.5), math.radians(180), math.radians(270)),
    Part.LineSegment(Vector(-363.75, -137.25, 0), Vector(363.75, -137.25, 0)),
    Part.ArcOfCircle(Part.Circle(Vector(363.75, -118.75, 0), Vector(0, 0, 1), 18.5), math.radians(-90), math.radians(0)),
    Part.LineSegment(Vector(382.25, -118.75, 0), Vector(382.25, -50.9, 0)),
    Part.ArcOfCircle(Part.Circle(Vector(363.75, -50.9, 0), Vector(0, 0, 1), 18.5), math.radians(0), math.radians(90)),
    Part.LineSegment(Vector(363.75, -32.4, 0), Vector(-376.5, -32.4, 0)),
    Part.ArcOfCircle(Part.Circle(Vector(-376.5, -50.9, 0), Vector(0, 0, 1), 18.5), math.radians(90), math.radians(180)),
    Part.LineSegment(Vector(-395, -50.9, 0), Vector(-395, -131.5, 0)),
    Part.ArcOfCircle(Part.Circle(Vector(-376.5, -131.5, 0), Vector(0, 0, 1), 18.5), math.radians(180), math.radians(270)),
    Part.LineSegment(Vector(-376.5, -150, 0), Vector(376.5, -150, 0)),
    Part.ArcOfCircle(Part.Circle(Vector(376.5, -131.5, 0), Vector(0, 0, 1), 18.5), math.radians(-90), math.radians(0)),
    Part.LineSegment(Vector(395, -131.5, 0), Vector(395, -27.8, 0)),
    Part.ArcOfCircle(Part.Circle(Vector(376.5, -27.8, 0), Vector(0, 0, 1), 18.5), math.radians(0), math.radians(90)),
], False)
sketch3.addConstraint([
    Sketcher.Constraint("Coincident", 0, 2, 1, 1),
    Sketcher.Constraint("Coincident", 1, 2, 2, 1),
    Sketcher.Constraint("Tangent", 2, 2, 3, 2),
    Sketcher.Constraint("Tangent", 3, 1, 4, 1),
    Sketcher.Constraint("Tangent", 4, 2, 5, 2),
    Sketcher.Constraint("Tangent", 5, 1, 6, 1),
    Sketcher.Constraint("Tangent", 6, 2, 7, 2),
    Sketcher.Constraint("Tangent", 7, 1, 8, 1),
    Sketcher.Constraint("Tangent", 8, 2, 9, 2),
    Sketcher.Constraint("Tangent", 9, 1, 10, 1),
    Sketcher.Constraint("Tangent", 10, 2, 11, 2),
    Sketcher.Constraint("Tangent", 11, 1, 12, 1),
    Sketcher.Constraint("Tangent", 12, 2, 13, 2),
    Sketcher.Constraint("Tangent", 13, 1, 14, 1),
    Sketcher.Constraint("Tangent", 14, 2, 15, 2),
    Sketcher.Constraint("Tangent", 15, 1, 16, 1),
    Sketcher.Constraint("Tangent", 16, 2, 17, 2),
    Sketcher.Constraint("Tangent", 17, 1, 18, 1),
    Sketcher.Constraint("Tangent", 18, 2, 19, 2),
    Sketcher.Constraint("Tangent", 19, 1, 20, 1),
    Sketcher.Constraint("Tangent", 20, 2, 21, 2),
    Sketcher.Constraint("Tangent", 21, 1, 22, 1),
    Sketcher.Constraint("Tangent", 22, 2, 23, 2),
    Sketcher.Constraint("Tangent", 23, 1, 24, 1),
    Sketcher.Constraint("Coincident", 24, 2, 25, 1),
    Sketcher.Constraint("Coincident", 25, 2, 26, 1),
    Sketcher.Constraint("Tangent", 26, 2, 27, 1),
    Sketcher.Constraint("Tangent", 27, 2, 28, 1),
    Sketcher.Constraint("Tangent", 28, 2, 29, 1),
    Sketcher.Constraint("Tangent", 29, 2, 30, 1),
    Sketcher.Constraint("Tangent", 30, 2, 31, 1),
    Sketcher.Constraint("Tangent", 31, 2, 32, 1),
    Sketcher.Constraint("Tangent", 32, 2, 33, 1),
    Sketcher.Constraint("Tangent", 33, 2, 34, 1),
    Sketcher.Constraint("Tangent", 34, 2, 35, 1),
    Sketcher.Constraint("Tangent", 35, 2, 36, 1),
    Sketcher.Constraint("Tangent", 36, 2, 37, 1),
    Sketcher.Constraint("Tangent", 37, 2, 38, 1),
    Sketcher.Constraint("Tangent", 38, 2, 39, 1),
    Sketcher.Constraint("Tangent", 39, 2, 40, 1),
    Sketcher.Constraint("Tangent", 40, 2, 41, 1),
    Sketcher.Constraint("Tangent", 41, 2, 42, 1),
    Sketcher.Constraint("Tangent", 42, 2, 43, 1),
    Sketcher.Constraint("Tangent", 43, 2, 44, 1),
    Sketcher.Constraint("Tangent", 44, 2, 45, 1),
    Sketcher.Constraint("Tangent", 45, 2, 46, 1),
    Sketcher.Constraint("Tangent", 46, 2, 47, 1),
    Sketcher.Constraint("Tangent", 47, 2, 0, 1),
    Sketcher.Constraint("Horizontal", 0),
    Sketcher.Constraint("Vertical", 1),
    Sketcher.Constraint("Horizontal", 2),
    Sketcher.Constraint("Vertical", 4),
    Sketcher.Constraint("Horizontal", 6),
    Sketcher.Constraint("Vertical", 8),
    Sketcher.Constraint("Horizontal", 10),
    Sketcher.Constraint("Vertical", 12),
    Sketcher.Constraint("Horizontal", 14),
    Sketcher.Constraint("Vertical", 16),
    Sketcher.Constraint("Horizontal", 18),
    Sketcher.Constraint("Vertical", 20),
    Sketcher.Constraint("Horizontal", 22),
    Sketcher.Constraint("Vertical", 24),
    Sketcher.Constraint("Horizontal", 25),
    Sketcher.Constraint("Vertical", 26),
    Sketcher.Constraint("Horizontal", 28),
    Sketcher.Constraint("Vertical", 30),
    Sketcher.Constraint("Horizontal", 32),
    Sketcher.Constraint("Vertical", 34),
    Sketcher.Constraint("Horizontal", 36),
    Sketcher.Constraint("Vertical", 38),
    Sketcher.Constraint("Horizontal", 40),
    Sketcher.Constraint("Vertical", 42),
    Sketcher.Constraint("Horizontal", 44),
    Sketcher.Constraint("Vertical", 46),
    Sketcher.Constraint("Equal", 3, 5),
    Sketcher.Constraint("Equal", 5, 7),
    Sketcher.Constraint("Equal", 7, 9),
    Sketcher.Constraint("Equal", 9, 11),
    Sketcher.Constraint("Equal", 11, 13),
    Sketcher.Constraint("Equal", 13, 15),
    Sketcher.Constraint("Equal", 15, 17),
    Sketcher.Constraint("Equal", 17, 19),
    Sketcher.Constraint("Equal", 19, 21),
    Sketcher.Constraint("Equal", 21, 23),
    Sketcher.Constraint("Equal", 27, 29),
    Sketcher.Constraint("Equal", 29, 31),
    Sketcher.Constraint("Equal", 31, 33),
    Sketcher.Constraint("Equal", 33, 35),
    Sketcher.Constraint("Equal", 35, 37),
    Sketcher.Constraint("Equal", 37, 39),
    Sketcher.Constraint("Equal", 39, 41),
    Sketcher.Constraint("Equal", 41, 43),
    Sketcher.Constraint("Equal", 43, 45),
    Sketcher.Constraint("Equal", 45, 47),
    Sketcher.Constraint("PointOnObject", 0, 2, -2),
    Sketcher.Constraint("Equal", 25, 1),
    Sketcher.Constraint("Radius", 3, 15.0),
    Sketcher.Constraint("Radius", 27, 18.5),
    Sketcher.Constraint("DistanceX", 25, 2, 25, 1, 4.5),
    Sketcher.Constraint("DistanceX", 41, 2, -1, 1, 395.0),
    Sketcher.Constraint("DistanceY", 43, 2, -1, 1, 150.0),
    Sketcher.Constraint("DistanceX", -1, 1, 45, 2, 395.0),
    Sketcher.Constraint("DistanceY", 0, 2, -1, 1, 9.3),
    Sketcher.Constraint("DistanceX", 6, 2, 6, 1, 751.0),
    Sketcher.Constraint("DistanceX", 22, 2, 22, 1, 700.0),
    Sketcher.Constraint("DistanceX", 28, 1, 28, 2, 702.0),
    Sketcher.Constraint("DistanceY", 20, 2, 20, 1, 30.0),
    Sketcher.Constraint("DistanceY", 30, 1, 30, 2, 32.0),
    Sketcher.Constraint("DistanceX", 2, 1, 2, 2, 375.5),
    Sketcher.Constraint("DistanceX", 14, 2, 14, 1, 725.5),
    Sketcher.Constraint("DistanceX", 36, 1, 36, 2, 727.5),
    Sketcher.Constraint("DistanceY", 4, 2, 4, 1, 101.7),
    Sketcher.Constraint("DistanceY", 8, 1, 8, 2, 78.6),
    Sketcher.Constraint("DistanceY", 42, 2, 42, 1, 80.6),
    Sketcher.Constraint("DistanceY", 17, 3, -1, 1, 75.0),
    Sketcher.Constraint("DistanceX", -1, 1, 19, 3, 350.0),
    Sketcher.Constraint("DistanceY", 27, 3, -1, 1, 106.0),
    Sketcher.Constraint("DistanceX", 10, 1, 10, 2, 738.25),
    Sketcher.Constraint("DistanceX", 32, 2, 32, 1, 714.75),
    Sketcher.Constraint("DistanceY", 12, 2, 12, 1, 65.85),
    Sketcher.Constraint("DistanceY", 34, 2, 34, 1, 44.75),
    Sketcher.Constraint("DistanceY", 24, 1, 24, 2, 33.2437),
])
pocket2 = body.newObject("PartDesign::Pocket", "Pocket001")
pocket2.Profile = sketch3
pocket2.Length = 4.5
pocket2.Reversed = True

doc.recompute()
